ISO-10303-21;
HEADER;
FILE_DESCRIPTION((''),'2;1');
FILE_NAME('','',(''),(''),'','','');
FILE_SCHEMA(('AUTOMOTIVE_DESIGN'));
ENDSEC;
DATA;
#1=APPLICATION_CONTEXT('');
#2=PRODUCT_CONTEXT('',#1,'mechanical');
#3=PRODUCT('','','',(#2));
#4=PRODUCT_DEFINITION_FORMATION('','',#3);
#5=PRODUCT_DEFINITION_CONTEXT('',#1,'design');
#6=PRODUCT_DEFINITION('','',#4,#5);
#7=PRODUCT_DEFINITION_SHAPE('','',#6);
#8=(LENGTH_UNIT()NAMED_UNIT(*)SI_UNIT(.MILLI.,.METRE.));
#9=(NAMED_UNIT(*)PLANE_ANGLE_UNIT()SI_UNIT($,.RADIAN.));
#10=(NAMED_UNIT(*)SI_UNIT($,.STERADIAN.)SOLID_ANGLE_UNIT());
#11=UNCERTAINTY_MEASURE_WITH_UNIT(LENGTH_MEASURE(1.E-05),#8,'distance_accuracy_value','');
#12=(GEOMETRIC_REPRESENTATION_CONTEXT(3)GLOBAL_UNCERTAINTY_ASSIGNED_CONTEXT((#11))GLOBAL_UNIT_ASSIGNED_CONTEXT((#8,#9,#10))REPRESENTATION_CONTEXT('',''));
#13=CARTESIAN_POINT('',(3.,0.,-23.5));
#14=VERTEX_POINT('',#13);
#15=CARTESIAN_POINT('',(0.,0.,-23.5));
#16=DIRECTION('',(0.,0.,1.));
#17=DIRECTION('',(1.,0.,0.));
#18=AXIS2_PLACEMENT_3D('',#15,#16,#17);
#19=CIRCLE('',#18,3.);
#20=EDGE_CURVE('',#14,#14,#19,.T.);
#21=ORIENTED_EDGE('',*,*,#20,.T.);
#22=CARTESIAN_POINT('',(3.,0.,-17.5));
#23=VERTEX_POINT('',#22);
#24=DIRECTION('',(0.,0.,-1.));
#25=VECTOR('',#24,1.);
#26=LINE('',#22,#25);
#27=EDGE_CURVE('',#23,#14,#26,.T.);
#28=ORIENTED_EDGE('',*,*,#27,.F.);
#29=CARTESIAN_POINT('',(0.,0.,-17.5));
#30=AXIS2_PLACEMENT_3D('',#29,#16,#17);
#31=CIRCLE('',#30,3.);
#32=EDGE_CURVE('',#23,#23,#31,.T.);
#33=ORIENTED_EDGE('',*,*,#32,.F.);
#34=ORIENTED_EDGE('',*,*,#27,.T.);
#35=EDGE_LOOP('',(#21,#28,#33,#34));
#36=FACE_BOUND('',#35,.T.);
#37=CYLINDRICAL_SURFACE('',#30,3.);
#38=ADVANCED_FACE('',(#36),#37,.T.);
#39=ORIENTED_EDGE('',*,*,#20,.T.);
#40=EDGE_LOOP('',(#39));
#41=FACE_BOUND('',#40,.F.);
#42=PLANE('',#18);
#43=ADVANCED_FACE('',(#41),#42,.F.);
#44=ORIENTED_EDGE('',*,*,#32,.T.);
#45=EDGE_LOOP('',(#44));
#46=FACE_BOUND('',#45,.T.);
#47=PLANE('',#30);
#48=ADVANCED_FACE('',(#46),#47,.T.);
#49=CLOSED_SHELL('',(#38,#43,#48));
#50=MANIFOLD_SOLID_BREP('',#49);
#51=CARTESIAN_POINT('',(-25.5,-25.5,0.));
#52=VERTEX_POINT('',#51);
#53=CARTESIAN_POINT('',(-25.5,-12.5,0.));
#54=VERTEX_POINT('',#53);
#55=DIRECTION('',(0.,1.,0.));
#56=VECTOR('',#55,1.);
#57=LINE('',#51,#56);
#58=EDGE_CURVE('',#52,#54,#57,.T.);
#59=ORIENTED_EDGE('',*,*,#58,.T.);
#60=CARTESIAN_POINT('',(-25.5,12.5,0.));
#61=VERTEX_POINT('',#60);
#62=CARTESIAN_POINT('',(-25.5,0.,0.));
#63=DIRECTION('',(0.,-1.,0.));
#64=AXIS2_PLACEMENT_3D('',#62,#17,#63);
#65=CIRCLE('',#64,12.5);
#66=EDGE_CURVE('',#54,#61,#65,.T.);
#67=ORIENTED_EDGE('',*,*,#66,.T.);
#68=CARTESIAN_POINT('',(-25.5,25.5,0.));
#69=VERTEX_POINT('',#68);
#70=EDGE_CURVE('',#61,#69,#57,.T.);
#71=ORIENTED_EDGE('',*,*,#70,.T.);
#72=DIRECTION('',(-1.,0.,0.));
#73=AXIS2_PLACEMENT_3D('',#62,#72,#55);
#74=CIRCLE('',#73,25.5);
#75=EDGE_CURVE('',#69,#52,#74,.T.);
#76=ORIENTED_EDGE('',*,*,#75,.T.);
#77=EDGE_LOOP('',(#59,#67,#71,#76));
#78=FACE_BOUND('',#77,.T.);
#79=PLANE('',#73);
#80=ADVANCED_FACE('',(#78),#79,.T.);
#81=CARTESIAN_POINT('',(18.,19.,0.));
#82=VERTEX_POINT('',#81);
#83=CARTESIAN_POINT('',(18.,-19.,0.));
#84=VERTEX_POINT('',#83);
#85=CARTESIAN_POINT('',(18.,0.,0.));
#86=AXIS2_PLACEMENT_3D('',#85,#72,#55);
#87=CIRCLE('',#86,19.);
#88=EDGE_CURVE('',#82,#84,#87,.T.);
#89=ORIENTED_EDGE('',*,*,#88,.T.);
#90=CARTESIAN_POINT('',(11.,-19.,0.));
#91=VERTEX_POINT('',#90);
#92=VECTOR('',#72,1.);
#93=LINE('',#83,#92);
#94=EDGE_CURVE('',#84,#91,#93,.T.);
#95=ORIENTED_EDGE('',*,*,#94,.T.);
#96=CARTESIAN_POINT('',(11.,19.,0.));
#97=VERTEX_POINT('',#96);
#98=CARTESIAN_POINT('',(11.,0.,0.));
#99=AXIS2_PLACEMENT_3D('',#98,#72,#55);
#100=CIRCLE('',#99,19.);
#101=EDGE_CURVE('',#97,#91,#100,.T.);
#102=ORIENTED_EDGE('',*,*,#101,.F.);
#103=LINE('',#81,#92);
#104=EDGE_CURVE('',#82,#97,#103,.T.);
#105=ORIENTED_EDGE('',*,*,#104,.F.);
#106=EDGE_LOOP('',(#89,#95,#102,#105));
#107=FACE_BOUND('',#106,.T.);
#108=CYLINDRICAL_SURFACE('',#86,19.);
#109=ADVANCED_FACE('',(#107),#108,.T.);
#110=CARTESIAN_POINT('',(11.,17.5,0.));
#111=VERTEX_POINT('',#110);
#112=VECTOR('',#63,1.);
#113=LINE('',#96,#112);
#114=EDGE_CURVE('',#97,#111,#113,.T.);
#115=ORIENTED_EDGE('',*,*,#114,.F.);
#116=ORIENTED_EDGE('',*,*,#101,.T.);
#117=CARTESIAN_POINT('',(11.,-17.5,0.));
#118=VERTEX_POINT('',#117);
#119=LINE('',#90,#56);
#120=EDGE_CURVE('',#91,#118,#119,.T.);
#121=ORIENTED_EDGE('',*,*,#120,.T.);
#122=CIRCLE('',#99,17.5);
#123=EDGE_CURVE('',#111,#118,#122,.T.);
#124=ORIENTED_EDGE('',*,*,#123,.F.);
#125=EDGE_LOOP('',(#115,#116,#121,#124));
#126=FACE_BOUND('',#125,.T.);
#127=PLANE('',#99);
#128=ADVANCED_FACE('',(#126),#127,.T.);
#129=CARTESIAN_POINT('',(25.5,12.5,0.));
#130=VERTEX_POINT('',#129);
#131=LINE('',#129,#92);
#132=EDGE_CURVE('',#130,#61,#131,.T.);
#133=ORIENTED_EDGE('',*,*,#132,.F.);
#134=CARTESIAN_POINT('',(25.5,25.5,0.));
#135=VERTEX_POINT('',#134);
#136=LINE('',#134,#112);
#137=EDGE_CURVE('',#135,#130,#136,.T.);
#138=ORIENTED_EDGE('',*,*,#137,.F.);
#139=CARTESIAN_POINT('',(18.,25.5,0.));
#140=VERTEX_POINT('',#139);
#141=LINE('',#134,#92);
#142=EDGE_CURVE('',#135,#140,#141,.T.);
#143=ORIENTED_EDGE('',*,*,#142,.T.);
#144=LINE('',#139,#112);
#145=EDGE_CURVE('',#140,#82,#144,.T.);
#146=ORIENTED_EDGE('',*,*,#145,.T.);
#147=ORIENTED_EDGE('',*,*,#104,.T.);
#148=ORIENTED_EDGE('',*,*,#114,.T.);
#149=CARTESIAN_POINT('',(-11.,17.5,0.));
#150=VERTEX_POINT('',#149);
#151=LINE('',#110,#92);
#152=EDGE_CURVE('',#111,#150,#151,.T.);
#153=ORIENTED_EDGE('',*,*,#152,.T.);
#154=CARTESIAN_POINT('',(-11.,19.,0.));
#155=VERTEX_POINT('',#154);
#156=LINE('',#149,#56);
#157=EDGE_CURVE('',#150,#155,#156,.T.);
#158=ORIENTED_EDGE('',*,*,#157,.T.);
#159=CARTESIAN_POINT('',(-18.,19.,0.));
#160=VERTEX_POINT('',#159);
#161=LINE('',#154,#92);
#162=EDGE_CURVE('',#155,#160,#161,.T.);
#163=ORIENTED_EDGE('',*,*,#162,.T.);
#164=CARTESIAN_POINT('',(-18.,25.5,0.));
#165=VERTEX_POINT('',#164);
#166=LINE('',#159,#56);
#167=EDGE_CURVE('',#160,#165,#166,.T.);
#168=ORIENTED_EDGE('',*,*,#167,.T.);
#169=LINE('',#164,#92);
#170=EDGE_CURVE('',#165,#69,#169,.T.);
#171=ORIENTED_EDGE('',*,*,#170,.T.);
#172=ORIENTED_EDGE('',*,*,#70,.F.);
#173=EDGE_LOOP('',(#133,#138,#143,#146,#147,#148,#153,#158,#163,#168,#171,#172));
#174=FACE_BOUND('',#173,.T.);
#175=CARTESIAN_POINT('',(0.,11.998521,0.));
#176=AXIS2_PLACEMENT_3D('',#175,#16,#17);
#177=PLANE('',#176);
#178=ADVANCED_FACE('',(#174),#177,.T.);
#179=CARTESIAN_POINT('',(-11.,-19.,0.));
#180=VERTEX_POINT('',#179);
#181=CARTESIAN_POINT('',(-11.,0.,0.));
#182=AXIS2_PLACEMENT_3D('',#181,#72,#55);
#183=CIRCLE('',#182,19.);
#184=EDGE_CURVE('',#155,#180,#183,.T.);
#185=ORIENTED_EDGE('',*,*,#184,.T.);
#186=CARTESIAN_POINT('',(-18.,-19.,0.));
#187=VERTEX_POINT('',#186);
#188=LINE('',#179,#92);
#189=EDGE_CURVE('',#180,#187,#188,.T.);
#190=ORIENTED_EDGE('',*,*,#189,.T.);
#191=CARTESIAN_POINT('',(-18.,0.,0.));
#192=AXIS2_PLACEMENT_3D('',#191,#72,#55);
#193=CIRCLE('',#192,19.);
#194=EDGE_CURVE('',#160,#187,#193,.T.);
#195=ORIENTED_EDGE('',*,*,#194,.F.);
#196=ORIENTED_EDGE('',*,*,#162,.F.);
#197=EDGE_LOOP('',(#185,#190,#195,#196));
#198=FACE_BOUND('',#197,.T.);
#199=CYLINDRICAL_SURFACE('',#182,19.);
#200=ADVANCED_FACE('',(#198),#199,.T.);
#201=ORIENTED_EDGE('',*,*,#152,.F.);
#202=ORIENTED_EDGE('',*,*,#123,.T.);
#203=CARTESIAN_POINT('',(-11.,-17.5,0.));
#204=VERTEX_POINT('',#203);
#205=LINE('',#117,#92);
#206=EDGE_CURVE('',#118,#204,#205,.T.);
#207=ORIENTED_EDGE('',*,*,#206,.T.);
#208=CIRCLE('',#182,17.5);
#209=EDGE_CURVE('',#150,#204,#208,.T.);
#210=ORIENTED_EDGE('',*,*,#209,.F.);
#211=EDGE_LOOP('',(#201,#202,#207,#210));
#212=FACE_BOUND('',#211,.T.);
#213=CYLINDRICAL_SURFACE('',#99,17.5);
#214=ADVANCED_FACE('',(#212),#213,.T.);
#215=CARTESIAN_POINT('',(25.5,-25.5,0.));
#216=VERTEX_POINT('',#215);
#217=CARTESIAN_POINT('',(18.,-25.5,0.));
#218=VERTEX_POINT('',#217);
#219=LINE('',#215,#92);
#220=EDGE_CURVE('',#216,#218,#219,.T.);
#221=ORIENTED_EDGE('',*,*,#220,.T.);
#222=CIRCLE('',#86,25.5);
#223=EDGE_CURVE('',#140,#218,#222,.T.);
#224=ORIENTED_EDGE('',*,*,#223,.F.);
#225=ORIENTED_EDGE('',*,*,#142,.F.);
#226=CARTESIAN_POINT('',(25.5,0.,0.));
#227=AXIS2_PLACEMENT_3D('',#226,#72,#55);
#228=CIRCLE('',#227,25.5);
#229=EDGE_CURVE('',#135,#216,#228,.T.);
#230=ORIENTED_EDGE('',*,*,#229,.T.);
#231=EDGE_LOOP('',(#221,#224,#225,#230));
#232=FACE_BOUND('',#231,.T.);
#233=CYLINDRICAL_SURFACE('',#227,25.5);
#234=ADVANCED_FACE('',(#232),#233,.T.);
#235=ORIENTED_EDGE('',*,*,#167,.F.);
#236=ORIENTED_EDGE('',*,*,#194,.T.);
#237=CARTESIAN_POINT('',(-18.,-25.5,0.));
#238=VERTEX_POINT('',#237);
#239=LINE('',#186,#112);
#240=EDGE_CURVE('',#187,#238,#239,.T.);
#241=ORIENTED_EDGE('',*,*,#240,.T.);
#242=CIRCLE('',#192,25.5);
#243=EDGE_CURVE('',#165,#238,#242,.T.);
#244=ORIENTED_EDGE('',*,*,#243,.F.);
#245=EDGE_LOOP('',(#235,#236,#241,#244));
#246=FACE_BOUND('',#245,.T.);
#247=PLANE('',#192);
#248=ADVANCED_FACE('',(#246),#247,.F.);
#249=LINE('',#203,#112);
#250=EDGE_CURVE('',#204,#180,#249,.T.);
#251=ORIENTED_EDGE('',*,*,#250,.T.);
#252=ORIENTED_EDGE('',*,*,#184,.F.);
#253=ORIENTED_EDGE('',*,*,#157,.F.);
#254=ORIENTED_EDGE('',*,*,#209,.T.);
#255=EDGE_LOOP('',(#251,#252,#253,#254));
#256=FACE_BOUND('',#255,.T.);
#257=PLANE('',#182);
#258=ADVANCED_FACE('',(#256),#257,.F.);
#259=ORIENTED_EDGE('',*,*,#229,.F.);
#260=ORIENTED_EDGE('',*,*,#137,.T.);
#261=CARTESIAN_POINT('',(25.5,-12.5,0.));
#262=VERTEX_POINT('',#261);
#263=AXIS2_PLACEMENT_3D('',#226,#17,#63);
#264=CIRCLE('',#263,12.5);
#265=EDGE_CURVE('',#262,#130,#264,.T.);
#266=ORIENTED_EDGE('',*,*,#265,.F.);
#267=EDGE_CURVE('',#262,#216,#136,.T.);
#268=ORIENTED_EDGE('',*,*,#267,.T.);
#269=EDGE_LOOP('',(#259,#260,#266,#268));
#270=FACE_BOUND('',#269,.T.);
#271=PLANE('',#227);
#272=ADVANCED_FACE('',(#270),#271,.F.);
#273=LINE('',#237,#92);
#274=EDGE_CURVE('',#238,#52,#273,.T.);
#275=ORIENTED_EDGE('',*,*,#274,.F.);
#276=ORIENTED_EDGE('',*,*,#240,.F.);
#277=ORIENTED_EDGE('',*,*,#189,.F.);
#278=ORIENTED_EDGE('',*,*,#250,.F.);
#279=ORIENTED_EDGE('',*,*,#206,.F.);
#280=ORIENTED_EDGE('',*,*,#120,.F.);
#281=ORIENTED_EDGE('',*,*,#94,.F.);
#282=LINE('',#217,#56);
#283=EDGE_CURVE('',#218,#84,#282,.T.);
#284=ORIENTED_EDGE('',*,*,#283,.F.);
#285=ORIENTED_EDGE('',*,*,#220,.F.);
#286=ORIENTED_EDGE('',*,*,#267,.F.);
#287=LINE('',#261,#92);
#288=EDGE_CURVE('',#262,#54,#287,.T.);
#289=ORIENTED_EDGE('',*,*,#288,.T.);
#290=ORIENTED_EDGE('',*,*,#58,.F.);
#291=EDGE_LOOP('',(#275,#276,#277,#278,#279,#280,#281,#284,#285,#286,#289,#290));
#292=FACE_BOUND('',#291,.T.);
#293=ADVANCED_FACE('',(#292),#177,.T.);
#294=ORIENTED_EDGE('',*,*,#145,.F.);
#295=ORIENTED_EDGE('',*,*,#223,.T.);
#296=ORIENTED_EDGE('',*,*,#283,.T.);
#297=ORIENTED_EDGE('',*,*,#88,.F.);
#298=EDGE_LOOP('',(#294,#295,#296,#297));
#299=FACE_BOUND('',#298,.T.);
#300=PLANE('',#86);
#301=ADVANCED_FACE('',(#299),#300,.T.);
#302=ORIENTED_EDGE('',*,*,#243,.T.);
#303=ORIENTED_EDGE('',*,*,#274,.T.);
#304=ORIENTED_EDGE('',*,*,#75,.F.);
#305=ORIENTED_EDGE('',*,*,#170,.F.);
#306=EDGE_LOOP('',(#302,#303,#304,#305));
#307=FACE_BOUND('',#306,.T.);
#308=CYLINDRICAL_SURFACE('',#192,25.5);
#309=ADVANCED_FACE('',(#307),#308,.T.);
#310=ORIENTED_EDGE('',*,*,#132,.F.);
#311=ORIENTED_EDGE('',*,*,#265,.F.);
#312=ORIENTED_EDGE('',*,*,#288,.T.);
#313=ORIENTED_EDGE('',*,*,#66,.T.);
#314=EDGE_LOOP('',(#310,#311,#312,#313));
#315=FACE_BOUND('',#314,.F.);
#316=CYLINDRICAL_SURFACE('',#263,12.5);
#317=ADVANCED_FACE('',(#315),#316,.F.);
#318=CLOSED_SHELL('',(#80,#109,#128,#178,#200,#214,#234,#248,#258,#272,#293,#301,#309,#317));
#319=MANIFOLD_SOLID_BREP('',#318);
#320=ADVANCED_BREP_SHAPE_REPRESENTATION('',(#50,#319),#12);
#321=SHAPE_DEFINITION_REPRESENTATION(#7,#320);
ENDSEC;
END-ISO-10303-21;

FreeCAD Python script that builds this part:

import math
import FreeCAD as App
import Part
import Sketcher
from FreeCAD import Vector

doc = App.newDocument("Part")
body = doc.addObject("PartDesign::Body", "Body")

# Sketch on XY plane
sketch1 = body.newObject("Sketcher::SketchObject", "Sketch")
sketch1.AttachmentSupport = (doc.getObject("XY_Plane"), [""])
sketch1.MapMode = "FlatFace"
sketch1.addGeometry([
    Part.LineSegment(Vector(25.5, 0, 0), Vector(25.5, 25.5, 0)),  # 0
    Part.LineSegment(Vector(25.5, 25.5, 0), Vector(18, 25.5, 0)),  # 1
    Part.LineSegment(Vector(18, 25.5, 0), Vector(18, 19, 0)),  # 2
    Part.LineSegment(Vector(18, 19, 0), Vector(11, 19, 0)),  # 3
    Part.LineSegment(Vector(11, 19, 0), Vector(11, 17.5, 0)),  # 4
    Part.LineSegment(Vector(11, 17.5, 0), Vector(-11, 17.5, 0)),  # 5
    Part.LineSegment(Vector(-11, 17.5, 0), Vector(-11, 19, 0)),  # 6
    Part.LineSegment(Vector(-11, 19, 0), Vector(-18, 19, 0)),  # 7
    Part.LineSegment(Vector(-18, 19, 0), Vector(-18, 25.5, 0)),  # 8
    Part.LineSegment(Vector(-18, 25.5, 0), Vector(-25.5, 25.5, 0)),  # 9
    Part.LineSegment(Vector(-25.5, 25.5, 0), Vector(-25.5, 0, 0)),  # 10
    Part.LineSegment(Vector(-25.5, 0, 0), Vector(25.5, 0, 0)),  # 11
], False)
sketch1.addConstraint([
    Sketcher.Constraint("Coincident", 0, 2, 1, 1),
    Sketcher.Constraint("Coincident", 1, 2, 2, 1),
    Sketcher.Constraint("Coincident", 2, 2, 3, 1),
    Sketcher.Constraint("Coincident", 3, 2, 4, 1),
    Sketcher.Constraint("Coincident", 4, 2, 5, 1),
    Sketcher.Constraint("Coincident", 5, 2, 6, 1),
    Sketcher.Constraint("Coincident", 6, 2, 7, 1),
    Sketcher.Constraint("Coincident", 7, 2, 8, 1),
    Sketcher.Constraint("Coincident", 8, 2, 9, 1),
    Sketcher.Constraint("Coincident", 9, 2, 10, 1),
    Sketcher.Constraint("Coincident", 10, 2, 11, 1),
    Sketcher.Constraint("Coincident", 11, 2, 0, 1),
    Sketcher.Constraint("Vertical", 0),
    Sketcher.Constraint("Horizontal", 1),
    Sketcher.Constraint("Vertical", 2),
    Sketcher.Constraint("Horizontal", 3),
    Sketcher.Constraint("Vertical", 4),
    Sketcher.Constraint("Horizontal", 5),
    Sketcher.Constraint("Vertical", 6),
    Sketcher.Constraint("Horizontal", 7),
    Sketcher.Constraint("Vertical", 8),
    Sketcher.Constraint("Horizontal", 9),
    Sketcher.Constraint("Vertical", 10),
    Sketcher.Constraint("Horizontal", 11),
    Sketcher.Constraint("Symmetric", 10, 2, 11, 2, -1, 1),
    Sketcher.Constraint("Symmetric", 3, 2, 6, 2, -2),
    Sketcher.Constraint("Symmetric", 1, 2, 8, 2, -2),
    Sketcher.Constraint("DistanceX", 3, 2, 3, 1, 7.0),
    Sketcher.Constraint("DistanceX", 5, 2, 5, 1, 22.0),
    Sketcher.Constraint("DistanceX", 11, 1, 11, 2, 51.0),
    Sketcher.Constraint("DistanceY", 0, 1, 0, 2, 25.5),
    Sketcher.Constraint("DistanceY", 2, 2, 2, 1, 6.5),
    Sketcher.Constraint("DistanceY", 4, 2, 4, 1, 1.5),
])
revolution = body.newObject("PartDesign::Revolution", "Revolution")
revolution.Profile = sketch1
revolution.ReferenceAxis = (sketch1, ["H_Axis"])
revolution.Angle = 180
revolution.Reversed = True

# Sketch on YZ plane
sketch2 = body.newObject("Sketcher::SketchObject", "Sketch001")
sketch2.AttachmentSupport = (doc.getObject("YZ_Plane"), [""])
sketch2.MapMode = "FlatFace"
sketch2.AttachmentOffset = App.Placement(Vector(0, 0, 25.5), App.Rotation())
sketch2.addGeometry([
    Part.LineSegment(Vector(12, 0, 0), Vector(-12, 0, 0)),
    Part.ArcOfCircle(Part.Circle(Vector(0, 0, 0), Vector(0, 0, 1), 12), math.radians(180), math.radians(360)),
], False)
sketch2.addConstraint([
    Sketcher.Constraint("Coincident", 0, 1, 1, 2),
    Sketcher.Constraint("Coincident", 1, 1, 0, 2),
    Sketcher.Constraint("Horizontal", 0),
    Sketcher.Constraint("Coincident", 1, 3, -1, 1),
    Sketcher.Constraint("PointOnObject", 0, 1, -1),
    Sketcher.Constraint("Radius", 1, 12.5),
])
pocket1 = body.newObject("PartDesign::Pocket", "Pocket")
pocket1.Profile = sketch2
pocket1.Type = "ThroughAll"
body2 = doc.addObject("PartDesign::Body", "Body001")

# Sketch on XY plane
sketch3 = body2.newObject("Sketcher::SketchObject", "Sketch002")
sketch3.AttachmentSupport = (doc.getObject("XY_Plane001"), [""])
sketch3.MapMode = "FlatFace"
sketch3.AttachmentOffset = App.Placement(Vector(0, 0, -17.5), App.Rotation())
sketch3.addGeometry(Part.Circle(Vector(0, 0, 0), Vector(0, 0, 1), 3), False)
sketch3.addConstraint([
    Sketcher.Constraint("Coincident", 0, 3, -1, 1),
    Sketcher.Constraint("Diameter", 0, 6.0),
])
pad1 = body2.newObject("PartDesign::Pad", "Pad")
pad1.Profile = sketch3
pad1.Length = 6
pad1.Reversed = True

doc.recompute()
